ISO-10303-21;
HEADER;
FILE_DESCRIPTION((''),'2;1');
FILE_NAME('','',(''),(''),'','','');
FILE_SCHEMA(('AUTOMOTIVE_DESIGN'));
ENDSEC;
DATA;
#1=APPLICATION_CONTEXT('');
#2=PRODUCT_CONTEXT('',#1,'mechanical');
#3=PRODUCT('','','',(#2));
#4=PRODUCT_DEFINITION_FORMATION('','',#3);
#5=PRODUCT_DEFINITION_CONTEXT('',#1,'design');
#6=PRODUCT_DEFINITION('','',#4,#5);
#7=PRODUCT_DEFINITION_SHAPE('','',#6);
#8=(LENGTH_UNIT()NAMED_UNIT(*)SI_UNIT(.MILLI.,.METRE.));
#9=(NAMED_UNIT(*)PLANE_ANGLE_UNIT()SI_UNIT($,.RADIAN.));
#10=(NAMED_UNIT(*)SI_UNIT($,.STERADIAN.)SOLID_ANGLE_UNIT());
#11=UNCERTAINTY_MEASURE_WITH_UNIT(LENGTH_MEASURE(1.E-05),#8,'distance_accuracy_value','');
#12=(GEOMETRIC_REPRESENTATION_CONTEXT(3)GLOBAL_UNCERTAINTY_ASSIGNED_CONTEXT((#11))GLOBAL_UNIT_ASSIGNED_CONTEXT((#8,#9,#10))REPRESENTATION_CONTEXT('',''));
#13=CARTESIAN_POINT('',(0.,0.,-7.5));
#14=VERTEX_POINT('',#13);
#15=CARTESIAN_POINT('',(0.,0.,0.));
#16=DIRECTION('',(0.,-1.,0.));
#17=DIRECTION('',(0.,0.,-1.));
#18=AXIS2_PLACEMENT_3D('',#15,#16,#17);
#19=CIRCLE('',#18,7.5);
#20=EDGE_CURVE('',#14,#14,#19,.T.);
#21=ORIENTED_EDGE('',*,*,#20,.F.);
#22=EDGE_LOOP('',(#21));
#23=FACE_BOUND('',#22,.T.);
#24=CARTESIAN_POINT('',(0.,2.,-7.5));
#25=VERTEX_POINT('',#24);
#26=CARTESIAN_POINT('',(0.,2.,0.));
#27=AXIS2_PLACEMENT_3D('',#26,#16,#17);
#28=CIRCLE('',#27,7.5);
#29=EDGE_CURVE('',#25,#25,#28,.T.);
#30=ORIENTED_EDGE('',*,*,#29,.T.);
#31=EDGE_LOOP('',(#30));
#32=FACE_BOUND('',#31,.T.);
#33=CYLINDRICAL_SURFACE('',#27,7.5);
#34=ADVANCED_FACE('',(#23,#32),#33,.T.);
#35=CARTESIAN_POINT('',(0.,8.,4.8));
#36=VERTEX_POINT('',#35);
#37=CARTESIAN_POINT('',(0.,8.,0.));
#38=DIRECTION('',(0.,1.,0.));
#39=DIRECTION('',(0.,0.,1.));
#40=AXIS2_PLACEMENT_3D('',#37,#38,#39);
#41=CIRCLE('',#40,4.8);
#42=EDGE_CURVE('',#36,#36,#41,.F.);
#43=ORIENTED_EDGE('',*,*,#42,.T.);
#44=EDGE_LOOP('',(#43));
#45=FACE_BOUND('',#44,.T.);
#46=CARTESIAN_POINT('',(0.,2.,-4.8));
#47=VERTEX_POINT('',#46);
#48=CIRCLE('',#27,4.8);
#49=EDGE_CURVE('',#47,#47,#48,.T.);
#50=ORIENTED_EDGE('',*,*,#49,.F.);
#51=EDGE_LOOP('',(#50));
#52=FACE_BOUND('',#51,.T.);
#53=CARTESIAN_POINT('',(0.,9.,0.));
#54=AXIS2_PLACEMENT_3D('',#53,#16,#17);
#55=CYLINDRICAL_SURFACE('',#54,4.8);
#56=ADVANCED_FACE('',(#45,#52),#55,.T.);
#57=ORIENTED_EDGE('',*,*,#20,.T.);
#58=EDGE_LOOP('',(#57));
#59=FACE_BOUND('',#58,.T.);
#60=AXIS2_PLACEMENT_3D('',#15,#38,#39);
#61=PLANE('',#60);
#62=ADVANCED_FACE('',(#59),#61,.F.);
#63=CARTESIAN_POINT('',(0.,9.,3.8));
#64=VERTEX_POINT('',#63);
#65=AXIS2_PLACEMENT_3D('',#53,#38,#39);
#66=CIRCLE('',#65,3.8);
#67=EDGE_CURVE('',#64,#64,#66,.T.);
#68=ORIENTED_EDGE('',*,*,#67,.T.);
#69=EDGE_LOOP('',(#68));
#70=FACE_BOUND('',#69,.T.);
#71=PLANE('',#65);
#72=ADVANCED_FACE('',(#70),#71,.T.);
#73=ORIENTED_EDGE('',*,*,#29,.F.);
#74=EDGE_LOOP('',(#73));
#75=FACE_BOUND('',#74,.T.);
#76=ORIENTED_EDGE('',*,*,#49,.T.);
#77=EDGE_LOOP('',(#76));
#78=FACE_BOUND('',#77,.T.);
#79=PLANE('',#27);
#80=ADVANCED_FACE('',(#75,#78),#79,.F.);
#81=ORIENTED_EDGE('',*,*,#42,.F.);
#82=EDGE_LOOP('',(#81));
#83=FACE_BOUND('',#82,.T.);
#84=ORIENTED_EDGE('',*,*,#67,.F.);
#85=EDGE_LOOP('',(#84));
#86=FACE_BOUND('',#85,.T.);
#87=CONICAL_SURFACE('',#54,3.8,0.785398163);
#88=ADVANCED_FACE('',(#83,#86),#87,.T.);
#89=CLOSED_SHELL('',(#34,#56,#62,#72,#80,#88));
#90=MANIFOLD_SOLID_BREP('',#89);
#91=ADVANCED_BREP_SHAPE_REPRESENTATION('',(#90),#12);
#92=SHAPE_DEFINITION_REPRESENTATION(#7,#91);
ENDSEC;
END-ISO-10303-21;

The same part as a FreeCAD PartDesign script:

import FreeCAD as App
import Part
import Sketcher
from FreeCAD import Vector
Q = App.Units.Quantity


def edges_at(feature, points):
    """Names of the edges that pass closest to the given points."""
    edges = feature.Shape.Edges
    near = lambda p: min(range(len(edges)), key=lambda i: edges[i].distToShape(Part.Vertex(*p))[0])
    return sorted({f"Edge{near(p) + 1}" for p in points})

doc = App.newDocument("Part")
body = doc.addObject("PartDesign::Body", "Body")

sketch1 = doc.addObject("Sketcher::SketchObject", "Sketch")
body.addObject(sketch1)
sketch1.AttachmentSupport = (doc.XZ_Plane, [""])
sketch1.MapMode = "FlatFace"
sketch1.addGeometry(Part.Circle(Vector(0, 0, 0), Vector(0, 0, 1), 4.8), False)
sketch1.addConstraint([
    Sketcher.Constraint("Coincident", 0, 3, -1, 1),
    Sketcher.Constraint("Diameter", 0, Q("9.6 mm")),
])
pad1 = doc.addObject("PartDesign::Pad", "Pad")
body.addObject(pad1)
pad1.Profile = sketch1
pad1.Length = 9
pad1.Reversed = True

sketch2 = doc.addObject("Sketcher::SketchObject", "Sketch001")
body.addObject(sketch2)
sketch2.AttachmentSupport = (doc.XZ_Plane, [""])
sketch2.MapMode = "FlatFace"
sketch2.addGeometry(Part.Circle(Vector(0, 0, 0), Vector(0, 0, 1), 8), False)
sketch2.addConstraint([
    Sketcher.Constraint("Coincident", 0, 3, -1, 1),
    Sketcher.Constraint("Diameter", 0, Q("15 mm")),
])
pad2 = doc.addObject("PartDesign::Pad", "Pad001")
body.addObject(pad2)
pad2.Profile = sketch2
pad2.Length = 2
pad2.Reversed = True
doc.recompute()

chamfer = doc.addObject("PartDesign::Chamfer", "Chamfer")
body.addObject(chamfer)
chamfer.Base = (pad2, edges_at(pad2, [(0, 9, -4.8)]))
chamfer.Size = 1

doc.recompute()
